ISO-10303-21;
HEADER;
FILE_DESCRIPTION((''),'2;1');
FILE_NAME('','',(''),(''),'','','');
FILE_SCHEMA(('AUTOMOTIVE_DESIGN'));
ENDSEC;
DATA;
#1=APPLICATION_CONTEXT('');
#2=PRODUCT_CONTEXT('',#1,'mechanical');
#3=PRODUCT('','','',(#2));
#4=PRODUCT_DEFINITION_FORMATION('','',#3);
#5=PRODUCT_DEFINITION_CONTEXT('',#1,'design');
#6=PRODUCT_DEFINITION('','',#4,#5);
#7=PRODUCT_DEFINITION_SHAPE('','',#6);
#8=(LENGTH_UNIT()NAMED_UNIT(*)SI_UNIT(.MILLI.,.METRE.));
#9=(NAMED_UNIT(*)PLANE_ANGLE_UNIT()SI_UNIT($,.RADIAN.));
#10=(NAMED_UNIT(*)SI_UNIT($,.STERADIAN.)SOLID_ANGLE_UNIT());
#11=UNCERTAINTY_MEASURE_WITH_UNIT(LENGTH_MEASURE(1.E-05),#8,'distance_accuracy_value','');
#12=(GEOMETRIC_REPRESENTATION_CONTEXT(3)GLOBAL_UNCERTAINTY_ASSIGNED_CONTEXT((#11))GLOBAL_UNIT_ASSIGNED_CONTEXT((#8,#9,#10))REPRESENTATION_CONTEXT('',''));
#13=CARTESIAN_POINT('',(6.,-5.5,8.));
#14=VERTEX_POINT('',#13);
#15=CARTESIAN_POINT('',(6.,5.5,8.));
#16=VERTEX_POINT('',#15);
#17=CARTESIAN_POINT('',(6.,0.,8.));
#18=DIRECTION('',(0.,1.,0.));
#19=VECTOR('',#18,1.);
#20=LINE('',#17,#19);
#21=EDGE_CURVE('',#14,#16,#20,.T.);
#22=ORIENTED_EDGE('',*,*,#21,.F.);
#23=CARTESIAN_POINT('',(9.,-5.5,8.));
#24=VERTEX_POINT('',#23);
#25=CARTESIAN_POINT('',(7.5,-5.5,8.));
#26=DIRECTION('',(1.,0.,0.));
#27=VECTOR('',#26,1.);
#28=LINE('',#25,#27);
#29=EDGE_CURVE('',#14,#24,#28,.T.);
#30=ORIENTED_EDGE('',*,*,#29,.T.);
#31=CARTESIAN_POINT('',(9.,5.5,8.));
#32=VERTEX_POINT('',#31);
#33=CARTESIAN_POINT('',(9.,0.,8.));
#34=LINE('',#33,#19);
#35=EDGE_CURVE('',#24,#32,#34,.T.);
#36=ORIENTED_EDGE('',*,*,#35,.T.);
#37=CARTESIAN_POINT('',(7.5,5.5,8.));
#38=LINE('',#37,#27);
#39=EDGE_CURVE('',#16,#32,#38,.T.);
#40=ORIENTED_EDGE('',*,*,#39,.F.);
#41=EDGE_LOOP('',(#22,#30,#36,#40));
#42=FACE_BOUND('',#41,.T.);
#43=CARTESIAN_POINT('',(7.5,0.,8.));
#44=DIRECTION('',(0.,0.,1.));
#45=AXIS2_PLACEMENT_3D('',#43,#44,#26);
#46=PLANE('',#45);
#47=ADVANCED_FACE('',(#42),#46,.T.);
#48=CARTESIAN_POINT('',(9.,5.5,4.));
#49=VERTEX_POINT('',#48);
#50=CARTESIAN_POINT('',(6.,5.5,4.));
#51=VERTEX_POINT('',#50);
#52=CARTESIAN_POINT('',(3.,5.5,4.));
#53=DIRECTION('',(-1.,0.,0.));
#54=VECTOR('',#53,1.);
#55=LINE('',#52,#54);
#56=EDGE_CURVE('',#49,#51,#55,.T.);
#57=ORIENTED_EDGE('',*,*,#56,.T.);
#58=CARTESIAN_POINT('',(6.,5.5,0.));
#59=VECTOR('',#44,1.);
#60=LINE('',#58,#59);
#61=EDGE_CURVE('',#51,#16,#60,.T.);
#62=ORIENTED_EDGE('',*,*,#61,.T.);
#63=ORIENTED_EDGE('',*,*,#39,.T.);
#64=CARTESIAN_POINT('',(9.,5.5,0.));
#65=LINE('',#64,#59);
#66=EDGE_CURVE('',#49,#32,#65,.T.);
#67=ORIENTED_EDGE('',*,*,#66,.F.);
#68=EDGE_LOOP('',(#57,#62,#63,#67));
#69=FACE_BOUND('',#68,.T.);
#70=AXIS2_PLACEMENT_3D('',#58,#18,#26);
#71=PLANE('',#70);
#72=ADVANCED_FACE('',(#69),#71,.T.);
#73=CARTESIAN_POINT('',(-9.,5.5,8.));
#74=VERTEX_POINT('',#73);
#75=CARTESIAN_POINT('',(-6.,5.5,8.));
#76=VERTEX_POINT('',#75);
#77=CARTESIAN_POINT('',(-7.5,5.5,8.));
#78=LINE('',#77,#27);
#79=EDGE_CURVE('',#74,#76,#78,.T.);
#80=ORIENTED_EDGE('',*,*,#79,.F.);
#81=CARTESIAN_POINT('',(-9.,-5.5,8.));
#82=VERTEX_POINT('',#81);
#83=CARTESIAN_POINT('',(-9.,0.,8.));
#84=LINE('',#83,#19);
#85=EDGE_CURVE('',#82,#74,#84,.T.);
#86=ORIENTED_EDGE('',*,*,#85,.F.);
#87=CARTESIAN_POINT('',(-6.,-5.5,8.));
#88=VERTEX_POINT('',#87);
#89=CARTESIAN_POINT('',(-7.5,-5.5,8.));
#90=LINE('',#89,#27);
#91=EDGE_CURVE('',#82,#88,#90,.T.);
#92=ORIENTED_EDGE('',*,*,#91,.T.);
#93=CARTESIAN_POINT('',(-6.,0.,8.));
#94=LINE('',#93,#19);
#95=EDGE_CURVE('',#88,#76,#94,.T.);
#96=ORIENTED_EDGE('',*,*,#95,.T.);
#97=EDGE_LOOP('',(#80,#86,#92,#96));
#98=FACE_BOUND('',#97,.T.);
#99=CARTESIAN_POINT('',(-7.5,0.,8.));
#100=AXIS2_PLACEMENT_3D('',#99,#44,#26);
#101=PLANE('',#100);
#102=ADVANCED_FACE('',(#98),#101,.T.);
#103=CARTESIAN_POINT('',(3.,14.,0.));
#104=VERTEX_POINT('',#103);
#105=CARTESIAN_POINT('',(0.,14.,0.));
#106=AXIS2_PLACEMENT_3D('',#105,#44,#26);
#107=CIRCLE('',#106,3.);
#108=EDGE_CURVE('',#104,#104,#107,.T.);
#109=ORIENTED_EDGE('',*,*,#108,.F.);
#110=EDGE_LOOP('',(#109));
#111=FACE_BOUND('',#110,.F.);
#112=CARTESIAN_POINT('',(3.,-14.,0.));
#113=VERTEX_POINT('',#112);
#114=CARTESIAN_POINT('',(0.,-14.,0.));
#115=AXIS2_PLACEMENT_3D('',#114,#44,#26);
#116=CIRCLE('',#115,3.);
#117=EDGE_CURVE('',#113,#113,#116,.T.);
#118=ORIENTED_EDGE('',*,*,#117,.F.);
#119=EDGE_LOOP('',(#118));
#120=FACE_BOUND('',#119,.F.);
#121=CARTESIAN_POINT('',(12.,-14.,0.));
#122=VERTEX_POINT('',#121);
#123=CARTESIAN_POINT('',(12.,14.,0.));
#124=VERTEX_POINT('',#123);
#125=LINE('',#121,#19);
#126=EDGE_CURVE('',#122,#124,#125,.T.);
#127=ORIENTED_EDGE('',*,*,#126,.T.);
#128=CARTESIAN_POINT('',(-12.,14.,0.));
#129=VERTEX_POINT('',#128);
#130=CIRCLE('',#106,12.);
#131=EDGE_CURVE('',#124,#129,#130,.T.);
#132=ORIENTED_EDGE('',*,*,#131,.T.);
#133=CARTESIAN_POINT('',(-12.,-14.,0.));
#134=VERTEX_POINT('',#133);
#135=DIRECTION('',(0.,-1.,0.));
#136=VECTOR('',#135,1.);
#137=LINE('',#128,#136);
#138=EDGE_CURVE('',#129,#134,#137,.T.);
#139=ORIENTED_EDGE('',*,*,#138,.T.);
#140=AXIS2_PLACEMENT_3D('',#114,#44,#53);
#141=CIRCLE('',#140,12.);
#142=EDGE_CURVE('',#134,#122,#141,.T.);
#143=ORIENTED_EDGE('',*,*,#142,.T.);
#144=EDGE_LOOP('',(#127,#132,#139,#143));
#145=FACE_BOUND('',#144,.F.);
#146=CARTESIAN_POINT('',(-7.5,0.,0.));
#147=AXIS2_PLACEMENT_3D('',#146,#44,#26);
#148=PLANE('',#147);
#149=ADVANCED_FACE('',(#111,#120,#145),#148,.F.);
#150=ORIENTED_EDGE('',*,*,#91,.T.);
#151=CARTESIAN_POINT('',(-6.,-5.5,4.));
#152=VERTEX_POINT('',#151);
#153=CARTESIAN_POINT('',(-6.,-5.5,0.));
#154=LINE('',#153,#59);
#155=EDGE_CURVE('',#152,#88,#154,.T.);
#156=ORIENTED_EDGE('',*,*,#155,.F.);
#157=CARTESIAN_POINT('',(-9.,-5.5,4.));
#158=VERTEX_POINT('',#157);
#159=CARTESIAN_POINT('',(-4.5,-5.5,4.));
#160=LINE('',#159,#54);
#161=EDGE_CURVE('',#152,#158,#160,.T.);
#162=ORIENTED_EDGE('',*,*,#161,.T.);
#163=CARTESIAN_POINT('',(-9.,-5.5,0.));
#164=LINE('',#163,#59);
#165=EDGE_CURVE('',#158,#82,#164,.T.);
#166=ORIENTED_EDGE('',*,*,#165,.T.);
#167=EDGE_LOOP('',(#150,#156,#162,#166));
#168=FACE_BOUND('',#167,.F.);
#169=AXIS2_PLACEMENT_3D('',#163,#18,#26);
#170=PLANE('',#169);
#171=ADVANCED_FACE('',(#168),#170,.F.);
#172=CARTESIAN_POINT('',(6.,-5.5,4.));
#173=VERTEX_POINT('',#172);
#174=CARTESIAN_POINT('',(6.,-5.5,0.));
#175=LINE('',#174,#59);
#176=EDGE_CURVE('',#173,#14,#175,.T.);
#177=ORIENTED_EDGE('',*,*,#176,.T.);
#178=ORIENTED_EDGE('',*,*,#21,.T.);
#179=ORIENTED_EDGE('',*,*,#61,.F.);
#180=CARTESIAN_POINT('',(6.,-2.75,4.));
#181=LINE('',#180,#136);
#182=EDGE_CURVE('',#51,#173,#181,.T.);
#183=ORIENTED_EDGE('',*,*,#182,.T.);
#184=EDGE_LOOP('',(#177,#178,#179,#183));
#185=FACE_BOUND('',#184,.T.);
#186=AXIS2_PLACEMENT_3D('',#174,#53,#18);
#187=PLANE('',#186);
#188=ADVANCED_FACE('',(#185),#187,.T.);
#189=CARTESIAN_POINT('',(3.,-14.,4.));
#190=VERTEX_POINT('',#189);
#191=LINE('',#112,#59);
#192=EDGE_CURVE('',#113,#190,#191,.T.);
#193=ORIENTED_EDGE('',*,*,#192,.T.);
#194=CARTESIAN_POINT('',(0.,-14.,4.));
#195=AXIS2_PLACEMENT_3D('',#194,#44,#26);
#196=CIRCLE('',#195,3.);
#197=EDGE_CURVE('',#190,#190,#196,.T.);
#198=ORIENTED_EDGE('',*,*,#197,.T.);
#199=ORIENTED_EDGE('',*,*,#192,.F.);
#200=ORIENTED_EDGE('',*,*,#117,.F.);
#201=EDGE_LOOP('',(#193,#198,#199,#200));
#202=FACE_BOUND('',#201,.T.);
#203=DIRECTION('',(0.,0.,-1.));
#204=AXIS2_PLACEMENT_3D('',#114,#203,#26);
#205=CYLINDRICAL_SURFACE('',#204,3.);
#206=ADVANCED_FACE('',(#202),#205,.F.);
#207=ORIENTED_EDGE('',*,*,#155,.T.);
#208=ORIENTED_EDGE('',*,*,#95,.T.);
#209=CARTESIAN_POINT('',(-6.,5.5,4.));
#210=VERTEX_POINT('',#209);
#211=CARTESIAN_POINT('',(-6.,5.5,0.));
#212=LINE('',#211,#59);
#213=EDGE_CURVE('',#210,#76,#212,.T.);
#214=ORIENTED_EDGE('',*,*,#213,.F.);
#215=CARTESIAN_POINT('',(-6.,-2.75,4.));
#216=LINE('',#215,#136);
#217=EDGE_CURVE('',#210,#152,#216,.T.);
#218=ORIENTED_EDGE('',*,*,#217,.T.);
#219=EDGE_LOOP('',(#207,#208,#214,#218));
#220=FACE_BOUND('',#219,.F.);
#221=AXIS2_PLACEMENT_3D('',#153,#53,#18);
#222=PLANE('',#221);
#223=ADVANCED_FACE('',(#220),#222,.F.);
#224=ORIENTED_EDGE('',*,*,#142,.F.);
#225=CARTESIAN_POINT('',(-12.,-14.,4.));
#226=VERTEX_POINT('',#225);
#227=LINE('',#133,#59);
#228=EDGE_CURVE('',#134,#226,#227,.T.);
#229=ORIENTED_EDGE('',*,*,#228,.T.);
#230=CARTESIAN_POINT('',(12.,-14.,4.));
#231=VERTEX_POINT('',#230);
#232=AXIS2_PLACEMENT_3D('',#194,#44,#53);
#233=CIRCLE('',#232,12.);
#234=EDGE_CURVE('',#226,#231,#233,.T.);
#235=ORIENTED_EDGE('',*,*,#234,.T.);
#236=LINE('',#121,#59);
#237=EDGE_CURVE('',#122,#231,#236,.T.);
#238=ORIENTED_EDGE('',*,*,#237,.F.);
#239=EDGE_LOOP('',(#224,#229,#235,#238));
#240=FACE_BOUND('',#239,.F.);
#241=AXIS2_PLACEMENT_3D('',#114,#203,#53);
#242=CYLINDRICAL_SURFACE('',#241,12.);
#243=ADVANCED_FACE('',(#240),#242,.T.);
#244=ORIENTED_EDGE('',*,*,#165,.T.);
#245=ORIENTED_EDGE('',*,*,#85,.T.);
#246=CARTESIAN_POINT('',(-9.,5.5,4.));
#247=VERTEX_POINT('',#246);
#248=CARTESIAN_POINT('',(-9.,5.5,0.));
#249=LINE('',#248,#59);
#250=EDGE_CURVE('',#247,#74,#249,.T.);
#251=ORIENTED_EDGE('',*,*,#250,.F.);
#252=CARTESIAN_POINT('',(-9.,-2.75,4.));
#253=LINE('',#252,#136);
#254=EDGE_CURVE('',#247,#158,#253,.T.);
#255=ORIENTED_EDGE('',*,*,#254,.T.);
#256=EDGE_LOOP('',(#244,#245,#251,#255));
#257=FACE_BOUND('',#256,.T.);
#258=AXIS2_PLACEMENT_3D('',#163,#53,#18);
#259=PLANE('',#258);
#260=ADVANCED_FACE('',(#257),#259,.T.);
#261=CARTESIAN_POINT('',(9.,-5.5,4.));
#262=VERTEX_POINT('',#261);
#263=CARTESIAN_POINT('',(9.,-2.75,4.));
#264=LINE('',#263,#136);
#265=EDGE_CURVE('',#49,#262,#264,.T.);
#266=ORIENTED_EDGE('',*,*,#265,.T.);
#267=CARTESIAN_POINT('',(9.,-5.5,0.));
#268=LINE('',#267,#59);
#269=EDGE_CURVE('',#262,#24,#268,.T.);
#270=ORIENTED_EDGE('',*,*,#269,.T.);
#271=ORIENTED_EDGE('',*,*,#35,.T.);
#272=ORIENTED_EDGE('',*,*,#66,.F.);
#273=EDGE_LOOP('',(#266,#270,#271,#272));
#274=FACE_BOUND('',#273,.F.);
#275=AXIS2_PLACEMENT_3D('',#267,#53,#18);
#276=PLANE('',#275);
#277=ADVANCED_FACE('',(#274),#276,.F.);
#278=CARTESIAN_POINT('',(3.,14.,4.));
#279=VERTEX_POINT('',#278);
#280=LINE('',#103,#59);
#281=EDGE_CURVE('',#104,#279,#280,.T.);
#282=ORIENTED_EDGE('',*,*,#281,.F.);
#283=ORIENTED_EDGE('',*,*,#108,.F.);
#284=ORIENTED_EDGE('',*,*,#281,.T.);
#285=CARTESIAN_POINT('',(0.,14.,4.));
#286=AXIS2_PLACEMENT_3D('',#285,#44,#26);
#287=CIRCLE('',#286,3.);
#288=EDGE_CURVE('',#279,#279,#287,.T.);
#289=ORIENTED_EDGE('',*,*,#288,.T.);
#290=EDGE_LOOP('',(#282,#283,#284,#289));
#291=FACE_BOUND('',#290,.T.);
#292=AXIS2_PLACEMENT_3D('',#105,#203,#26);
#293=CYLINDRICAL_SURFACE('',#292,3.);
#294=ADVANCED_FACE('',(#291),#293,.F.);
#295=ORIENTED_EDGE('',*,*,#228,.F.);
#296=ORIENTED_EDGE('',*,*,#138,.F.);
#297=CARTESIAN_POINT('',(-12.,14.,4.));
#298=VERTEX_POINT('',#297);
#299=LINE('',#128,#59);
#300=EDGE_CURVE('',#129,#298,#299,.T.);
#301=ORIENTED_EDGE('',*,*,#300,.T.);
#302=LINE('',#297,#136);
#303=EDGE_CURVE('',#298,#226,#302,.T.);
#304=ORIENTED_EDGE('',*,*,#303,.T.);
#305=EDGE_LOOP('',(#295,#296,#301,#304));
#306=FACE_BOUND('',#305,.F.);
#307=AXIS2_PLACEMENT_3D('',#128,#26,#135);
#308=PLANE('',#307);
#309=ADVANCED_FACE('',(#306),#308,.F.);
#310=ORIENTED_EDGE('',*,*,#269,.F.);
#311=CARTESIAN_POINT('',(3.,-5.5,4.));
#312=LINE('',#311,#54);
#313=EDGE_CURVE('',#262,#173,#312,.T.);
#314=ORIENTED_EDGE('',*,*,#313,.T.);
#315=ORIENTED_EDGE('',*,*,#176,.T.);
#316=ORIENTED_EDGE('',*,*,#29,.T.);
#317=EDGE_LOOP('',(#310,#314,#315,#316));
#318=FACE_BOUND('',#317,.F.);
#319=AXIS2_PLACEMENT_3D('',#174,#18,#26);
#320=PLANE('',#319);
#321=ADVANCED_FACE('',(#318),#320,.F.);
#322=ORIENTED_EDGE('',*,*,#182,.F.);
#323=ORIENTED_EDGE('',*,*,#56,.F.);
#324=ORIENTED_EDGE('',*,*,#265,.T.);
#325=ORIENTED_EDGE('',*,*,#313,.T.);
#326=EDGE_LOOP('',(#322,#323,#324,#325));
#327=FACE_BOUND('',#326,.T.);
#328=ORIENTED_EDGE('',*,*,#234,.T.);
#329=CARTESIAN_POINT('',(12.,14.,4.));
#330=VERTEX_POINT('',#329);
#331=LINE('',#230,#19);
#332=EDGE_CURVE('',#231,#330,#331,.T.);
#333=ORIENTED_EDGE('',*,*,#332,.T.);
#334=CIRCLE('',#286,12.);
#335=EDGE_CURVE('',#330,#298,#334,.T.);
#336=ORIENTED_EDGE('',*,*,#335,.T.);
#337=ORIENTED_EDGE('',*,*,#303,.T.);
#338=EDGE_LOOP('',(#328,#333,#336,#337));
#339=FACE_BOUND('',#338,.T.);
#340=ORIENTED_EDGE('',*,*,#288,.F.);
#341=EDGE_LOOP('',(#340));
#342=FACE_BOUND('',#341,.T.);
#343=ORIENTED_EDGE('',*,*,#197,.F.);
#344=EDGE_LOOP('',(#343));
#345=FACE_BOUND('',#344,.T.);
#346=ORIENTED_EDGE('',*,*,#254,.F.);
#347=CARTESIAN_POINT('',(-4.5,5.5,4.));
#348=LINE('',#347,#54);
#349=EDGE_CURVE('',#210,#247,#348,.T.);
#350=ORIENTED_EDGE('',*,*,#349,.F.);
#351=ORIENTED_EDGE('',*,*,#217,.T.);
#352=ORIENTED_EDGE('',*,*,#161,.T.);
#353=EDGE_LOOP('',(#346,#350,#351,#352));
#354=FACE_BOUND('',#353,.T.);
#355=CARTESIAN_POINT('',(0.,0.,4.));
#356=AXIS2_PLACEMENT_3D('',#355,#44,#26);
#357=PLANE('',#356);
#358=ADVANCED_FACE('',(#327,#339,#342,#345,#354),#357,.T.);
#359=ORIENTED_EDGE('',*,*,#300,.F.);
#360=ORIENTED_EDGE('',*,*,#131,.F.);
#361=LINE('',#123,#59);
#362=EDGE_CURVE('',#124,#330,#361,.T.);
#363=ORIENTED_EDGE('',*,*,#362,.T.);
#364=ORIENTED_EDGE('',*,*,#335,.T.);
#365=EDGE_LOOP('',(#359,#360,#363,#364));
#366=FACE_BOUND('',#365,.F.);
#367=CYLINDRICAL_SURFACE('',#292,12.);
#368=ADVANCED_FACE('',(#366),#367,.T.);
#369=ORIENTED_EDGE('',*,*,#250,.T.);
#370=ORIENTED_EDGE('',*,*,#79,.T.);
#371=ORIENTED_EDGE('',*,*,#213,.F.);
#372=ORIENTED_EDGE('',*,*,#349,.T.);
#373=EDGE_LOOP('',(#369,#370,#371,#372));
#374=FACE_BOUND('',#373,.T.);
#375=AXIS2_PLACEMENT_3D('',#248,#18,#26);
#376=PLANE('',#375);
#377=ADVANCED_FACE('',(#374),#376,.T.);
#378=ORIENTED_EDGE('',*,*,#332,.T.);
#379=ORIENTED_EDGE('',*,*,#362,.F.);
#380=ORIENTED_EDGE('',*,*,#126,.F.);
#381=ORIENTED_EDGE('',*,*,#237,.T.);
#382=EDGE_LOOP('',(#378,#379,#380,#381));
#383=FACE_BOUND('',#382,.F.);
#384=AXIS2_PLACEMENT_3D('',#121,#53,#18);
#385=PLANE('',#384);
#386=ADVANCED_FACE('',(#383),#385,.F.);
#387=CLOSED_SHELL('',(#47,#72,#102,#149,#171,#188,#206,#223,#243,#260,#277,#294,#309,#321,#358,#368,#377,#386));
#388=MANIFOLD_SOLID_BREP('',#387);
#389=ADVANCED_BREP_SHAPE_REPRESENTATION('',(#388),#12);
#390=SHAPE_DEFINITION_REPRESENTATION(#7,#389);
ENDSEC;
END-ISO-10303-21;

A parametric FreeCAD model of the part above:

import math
import FreeCAD as App
import Part
import Sketcher
Q = App.Units.Quantity

doc = App.newDocument("Part")
body = doc.addObject("PartDesign::Body", "Body")

# Sketch on XY plane
sketch1 = body.newObject("Sketcher::SketchObject", "Sketch")
sketch1.AttachmentSupport = (doc.getObject("XY_Plane"), [""])
sketch1.MapMode = "FlatFace"
sketch1.addGeometry([
    Part.ArcOfCircle(Part.Circle(App.Vector(0, 14, 0), App.Vector(0, 0, 1), 12), math.radians(0), math.radians(180)),  # 0
    Part.LineSegment(App.Vector(-12, 14, 0), App.Vector(-12, -14, 0)),  # 1
    Part.ArcOfCircle(Part.Circle(App.Vector(0, -14, 0), App.Vector(0, 0, 1), 12), math.radians(180), math.radians(360)),  # 2
    Part.LineSegment(App.Vector(12, -14, 0), App.Vector(12, 14, 0)),  # 3
    Part.Circle(App.Vector(0, -14, 0), App.Vector(0, 0, 1), 3),  # 4
    Part.Circle(App.Vector(0, 14, 0), App.Vector(0, 0, 1), 3),  # 5
], False)
sketch1.addConstraint([
    Sketcher.Constraint("Tangent", 0, 2, 1, 1),
    Sketcher.Constraint("Tangent", 1, 2, 2, 1),
    Sketcher.Constraint("Tangent", 2, 2, 3, 1),
    Sketcher.Constraint("Tangent", 3, 2, 0, 1),
    Sketcher.Constraint("Vertical", 1),
    Sketcher.Constraint("Vertical", 3),
    Sketcher.Constraint("Coincident", 4, 3, 2, 3),
    Sketcher.Constraint("Coincident", 5, 3, 0, 3),
    Sketcher.Constraint("Equal", 4, 5),
    Sketcher.Constraint("Symmetric", 0, 3, 2, 3, -1, 1),
    Sketcher.Constraint("Diameter", 4, Q("6 mm")),
    Sketcher.Constraint("Radius", 0, Q("12 mm")),
    Sketcher.Constraint("DistanceY", 1, 2, 1, 1, Q("28 mm")),
])
pad1 = body.newObject("PartDesign::Pad", "Pad")
pad1.Profile = sketch1
pad1.Length = 4

# Sketch on XY plane
sketch2 = body.newObject("Sketcher::SketchObject", "Sketch001")
sketch2.AttachmentSupport = (doc.getObject("XY_Plane"), [""])
sketch2.MapMode = "FlatFace"
sketch2.addGeometry([
    Part.LineSegment(App.Vector(-9, 5.5, 0), App.Vector(-9, -5.5, 0)),  # 0
    Part.LineSegment(App.Vector(-9, -5.5, 0), App.Vector(-6, -5.5, 0)),  # 1
    Part.LineSegment(App.Vector(-6, -5.5, 0), App.Vector(-6, 5.5, 0)),  # 2
    Part.LineSegment(App.Vector(-6, 5.5, 0), App.Vector(-9, 5.5, 0)),  # 3
    Part.LineSegment(App.Vector(6, 5.5, 0), App.Vector(6, -5.5, 0)),  # 4
    Part.LineSegment(App.Vector(6, -5.5, 0), App.Vector(9, -5.5, 0)),  # 5
    Part.LineSegment(App.Vector(9, -5.5, 0), App.Vector(9, 5.5, 0)),  # 6
    Part.LineSegment(App.Vector(9, 5.5, 0), App.Vector(6, 5.5, 0)),  # 7
], False)
sketch2.addConstraint([
    Sketcher.Constraint("Coincident", 0, 2, 1, 1),
    Sketcher.Constraint("Coincident", 1, 2, 2, 1),
    Sketcher.Constraint("Coincident", 2, 2, 3, 1),
    Sketcher.Constraint("Coincident", 3, 2, 0, 1),
    Sketcher.Constraint("Coincident", 4, 2, 5, 1),
    Sketcher.Constraint("Coincident", 5, 2, 6, 1),
    Sketcher.Constraint("Coincident", 6, 2, 7, 1),
    Sketcher.Constraint("Coincident", 7, 2, 4, 1),
    Sketcher.Constraint("Vertical", 0),
    Sketcher.Constraint("Horizontal", 1),
    Sketcher.Constraint("Vertical", 2),
    Sketcher.Constraint("Horizontal", 3),
    Sketcher.Constraint("Vertical", 4),
    Sketcher.Constraint("Horizontal", 5),
    Sketcher.Constraint("Vertical", 6),
    Sketcher.Constraint("Horizontal", 7),
    Sketcher.Constraint("Symmetric", 2, 2, 4, 2, -1, 1),
    Sketcher.Constraint("Symmetric", 0, 2, 6, 2, -1, 1),
    Sketcher.Constraint("Horizontal", 1, 2, 4, 2),
    Sketcher.Constraint("DistanceX", 1, 1, 1, 2, Q("3 mm")),
    Sketcher.Constraint("DistanceY", 0, 2, 0, 1, Q("11 mm")),
    Sketcher.Constraint("DistanceX", 0, 2, -1, 1, Q("9 mm")),
])
pad2 = body.newObject("PartDesign::Pad", "Pad001")
pad2.Profile = sketch2
pad2.Length = 8

doc.recompute()
